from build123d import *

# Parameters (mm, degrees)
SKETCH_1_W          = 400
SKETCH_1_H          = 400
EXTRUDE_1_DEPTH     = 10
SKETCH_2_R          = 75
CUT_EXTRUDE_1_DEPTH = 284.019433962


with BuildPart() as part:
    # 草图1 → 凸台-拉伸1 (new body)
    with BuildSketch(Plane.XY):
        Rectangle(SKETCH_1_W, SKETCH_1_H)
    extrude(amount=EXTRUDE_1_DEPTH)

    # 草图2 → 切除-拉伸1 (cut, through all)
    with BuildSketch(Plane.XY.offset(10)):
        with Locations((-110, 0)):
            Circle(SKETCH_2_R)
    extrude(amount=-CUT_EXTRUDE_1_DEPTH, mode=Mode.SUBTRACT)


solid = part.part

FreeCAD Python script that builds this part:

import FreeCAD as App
import Part
import Sketcher

V = App.Vector

doc = App.newDocument("Part")
body = doc.addObject("PartDesign::Body", "Body")

# Sketch on XY plane
sketch1 = body.newObject("Sketcher::SketchObject", "Sketch")
sketch1.AttachmentSupport = (doc.getObject("XY_Plane"), [""])
sketch1.MapMode = "FlatFace"
sketch1.addGeometry([
    Part.LineSegment(V(-200, 200, 0), V(-200, -200, 0)),
    Part.LineSegment(V(-200, -200, 0), V(200, -200, 0)),
    Part.LineSegment(V(200, -200, 0), V(200, 200, 0)),
    Part.LineSegment(V(200, 200, 0), V(-200, 200, 0)),
], False)
sketch1.addConstraint([
    Sketcher.Constraint("Coincident", 0, 2, 1, 1),
    Sketcher.Constraint("Coincident", 1, 2, 2, 1),
    Sketcher.Constraint("Coincident", 2, 2, 3, 1),
    Sketcher.Constraint("Coincident", 3, 2, 0, 1),
    Sketcher.Constraint("Vertical", 0),
    Sketcher.Constraint("Horizontal", 1),
    Sketcher.Constraint("Vertical", 2),
    Sketcher.Constraint("Horizontal", 3),
    Sketcher.Constraint("Symmetric", 0, 2, 2, 2, -1, 1),
    Sketcher.Constraint("Equal", 3, 0),
    Sketcher.Constraint("DistanceX", 1, 1, 1, 2, 400.0),
])
pad1 = body.newObject("PartDesign::Pad", "Pad")
pad1.Profile = sketch1
pad1.Length = 10

# Sketch on XY plane
sketch2 = body.newObject("Sketcher::SketchObject", "Sketch001")
sketch2.AttachmentSupport = (doc.getObject("XY_Plane"), [""])
sketch2.MapMode = "FlatFace"
sketch2.AttachmentOffset = App.Placement(V(0, 0, 10), App.Rotation())
sketch2.addGeometry(Part.Circle(V(-110, 0, 0), V(0, 0, 1), 75), False)
sketch2.addConstraint([
    Sketcher.Constraint("PointOnObject", 0, 3, -1),
    Sketcher.Constraint("Diameter", 0, 150.0),
    Sketcher.Constraint("DistanceX", 0, 3, -1, 1, 110.0),
])
pocket1 = body.newObject("PartDesign::Pocket", "Pocket")
pocket1.Profile = sketch2
pocket1.Type = "ThroughAll"

doc.recompute()
